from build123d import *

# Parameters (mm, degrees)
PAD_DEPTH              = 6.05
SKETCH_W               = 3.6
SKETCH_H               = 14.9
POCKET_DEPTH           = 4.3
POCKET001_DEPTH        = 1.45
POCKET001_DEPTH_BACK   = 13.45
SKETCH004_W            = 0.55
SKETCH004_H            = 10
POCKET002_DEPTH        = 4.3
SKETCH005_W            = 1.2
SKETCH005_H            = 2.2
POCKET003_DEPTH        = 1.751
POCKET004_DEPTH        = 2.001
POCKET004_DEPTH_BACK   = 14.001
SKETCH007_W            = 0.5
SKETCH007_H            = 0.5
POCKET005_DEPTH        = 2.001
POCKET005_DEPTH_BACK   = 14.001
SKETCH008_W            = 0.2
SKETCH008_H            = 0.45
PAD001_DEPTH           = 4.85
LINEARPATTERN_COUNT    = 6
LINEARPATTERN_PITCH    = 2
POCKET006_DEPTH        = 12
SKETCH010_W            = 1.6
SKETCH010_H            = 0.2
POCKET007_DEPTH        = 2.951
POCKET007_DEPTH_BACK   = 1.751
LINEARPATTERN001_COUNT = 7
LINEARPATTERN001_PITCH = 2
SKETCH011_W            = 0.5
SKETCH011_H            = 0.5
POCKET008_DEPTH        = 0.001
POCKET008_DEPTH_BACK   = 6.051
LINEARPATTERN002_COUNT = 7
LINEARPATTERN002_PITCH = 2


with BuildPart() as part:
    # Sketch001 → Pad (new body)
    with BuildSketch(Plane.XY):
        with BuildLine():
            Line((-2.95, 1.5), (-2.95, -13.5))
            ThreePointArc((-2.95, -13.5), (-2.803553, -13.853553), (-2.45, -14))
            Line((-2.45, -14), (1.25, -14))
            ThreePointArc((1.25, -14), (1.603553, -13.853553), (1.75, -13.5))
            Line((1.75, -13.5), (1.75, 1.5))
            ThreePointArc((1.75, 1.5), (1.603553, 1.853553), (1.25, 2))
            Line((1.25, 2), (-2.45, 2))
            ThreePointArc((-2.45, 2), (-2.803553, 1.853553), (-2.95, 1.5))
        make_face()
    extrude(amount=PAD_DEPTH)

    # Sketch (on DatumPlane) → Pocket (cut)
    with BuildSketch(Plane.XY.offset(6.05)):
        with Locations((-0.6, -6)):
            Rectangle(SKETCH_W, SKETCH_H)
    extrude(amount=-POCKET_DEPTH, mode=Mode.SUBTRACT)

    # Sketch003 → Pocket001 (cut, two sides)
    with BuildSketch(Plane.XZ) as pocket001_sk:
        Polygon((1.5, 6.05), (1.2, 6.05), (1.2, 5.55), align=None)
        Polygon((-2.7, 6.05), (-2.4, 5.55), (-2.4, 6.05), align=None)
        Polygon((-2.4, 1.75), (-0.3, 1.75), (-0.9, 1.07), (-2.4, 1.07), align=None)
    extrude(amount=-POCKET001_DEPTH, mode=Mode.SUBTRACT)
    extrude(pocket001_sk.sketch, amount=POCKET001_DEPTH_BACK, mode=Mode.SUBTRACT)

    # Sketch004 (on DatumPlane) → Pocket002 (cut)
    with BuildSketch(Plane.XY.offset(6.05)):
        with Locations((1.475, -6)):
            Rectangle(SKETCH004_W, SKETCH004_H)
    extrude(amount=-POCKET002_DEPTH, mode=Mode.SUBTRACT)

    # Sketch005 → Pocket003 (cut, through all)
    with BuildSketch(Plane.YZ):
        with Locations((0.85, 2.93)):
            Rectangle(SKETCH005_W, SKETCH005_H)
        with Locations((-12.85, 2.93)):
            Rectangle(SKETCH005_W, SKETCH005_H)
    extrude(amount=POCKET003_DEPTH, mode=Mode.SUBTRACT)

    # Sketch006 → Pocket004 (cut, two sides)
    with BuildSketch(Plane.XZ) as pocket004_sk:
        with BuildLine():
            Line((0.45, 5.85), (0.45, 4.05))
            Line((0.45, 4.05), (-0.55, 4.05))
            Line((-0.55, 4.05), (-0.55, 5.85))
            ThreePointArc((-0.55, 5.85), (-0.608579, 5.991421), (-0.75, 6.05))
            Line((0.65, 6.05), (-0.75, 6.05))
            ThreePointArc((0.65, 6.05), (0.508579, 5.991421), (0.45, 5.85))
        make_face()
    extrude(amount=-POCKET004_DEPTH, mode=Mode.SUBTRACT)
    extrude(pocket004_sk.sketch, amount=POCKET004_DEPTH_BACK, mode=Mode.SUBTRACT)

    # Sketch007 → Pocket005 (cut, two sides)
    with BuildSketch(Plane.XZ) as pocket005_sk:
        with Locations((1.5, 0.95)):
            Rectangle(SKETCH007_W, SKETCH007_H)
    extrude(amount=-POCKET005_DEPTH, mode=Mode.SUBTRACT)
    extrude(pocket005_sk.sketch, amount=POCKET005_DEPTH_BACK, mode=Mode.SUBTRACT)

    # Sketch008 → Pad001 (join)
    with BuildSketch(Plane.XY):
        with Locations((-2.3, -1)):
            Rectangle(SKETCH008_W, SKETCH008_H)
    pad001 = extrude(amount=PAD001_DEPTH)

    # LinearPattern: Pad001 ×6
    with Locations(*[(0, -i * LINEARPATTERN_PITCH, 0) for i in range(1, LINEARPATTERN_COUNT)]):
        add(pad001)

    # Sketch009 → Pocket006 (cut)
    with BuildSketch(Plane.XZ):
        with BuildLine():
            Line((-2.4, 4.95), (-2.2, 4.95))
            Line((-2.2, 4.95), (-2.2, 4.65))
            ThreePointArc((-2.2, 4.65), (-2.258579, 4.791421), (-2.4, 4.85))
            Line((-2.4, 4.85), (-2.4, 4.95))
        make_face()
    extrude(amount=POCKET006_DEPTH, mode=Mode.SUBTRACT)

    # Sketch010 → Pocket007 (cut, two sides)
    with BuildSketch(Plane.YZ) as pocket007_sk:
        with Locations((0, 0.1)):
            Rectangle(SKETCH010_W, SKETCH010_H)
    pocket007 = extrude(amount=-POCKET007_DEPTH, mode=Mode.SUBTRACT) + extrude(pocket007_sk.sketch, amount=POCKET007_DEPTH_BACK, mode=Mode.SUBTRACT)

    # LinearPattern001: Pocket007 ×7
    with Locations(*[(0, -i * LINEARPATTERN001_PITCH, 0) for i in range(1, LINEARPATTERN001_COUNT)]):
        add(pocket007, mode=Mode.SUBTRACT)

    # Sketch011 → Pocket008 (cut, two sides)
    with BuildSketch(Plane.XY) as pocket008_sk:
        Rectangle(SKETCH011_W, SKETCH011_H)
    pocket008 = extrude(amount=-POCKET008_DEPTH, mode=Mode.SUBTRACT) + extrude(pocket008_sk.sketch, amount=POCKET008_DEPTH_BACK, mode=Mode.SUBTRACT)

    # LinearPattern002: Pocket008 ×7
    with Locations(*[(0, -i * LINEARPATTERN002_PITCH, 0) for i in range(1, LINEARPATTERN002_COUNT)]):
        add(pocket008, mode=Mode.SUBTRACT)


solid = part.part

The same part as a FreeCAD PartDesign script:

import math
import FreeCAD as App
import Part
import Sketcher
from FreeCAD import Vector
Q = App.Units.Quantity


def add_polygon(sketch, points):
    """Adds a closed chain of lines whose ends are joined by coincident constraints."""
    first, n = sketch.GeometryCount, len(points)
    for a, b in zip(points, points[1:] + points[:1]):
        sketch.addGeometry(Part.LineSegment(App.Vector(*a, 0), App.Vector(*b, 0)), False)
    for i in range(n):
        sketch.addConstraint(Sketcher.Constraint("Coincident", first + i, 2, first + (i + 1) % n, 1))

doc = App.newDocument("Part")
body = doc.addObject("PartDesign::Body", "Body")

sketch1 = body.newObject("Sketcher::SketchObject", "Sketch")
sketch1.AttachmentSupport = (doc.getObject("XY_Plane"), [""])
sketch1.MapMode = "FlatFace"
sketch1.addGeometry([
    Part.LineSegment(Vector(-2.95, 1.5, 0), Vector(-2.95, -13.5, 0)),
    Part.ArcOfCircle(Part.Circle(Vector(-2.449999, -13.499999, 0), Vector(0, 0, 1), 0.500001), math.radians(-179.999847), math.radians(-90.000153)),
    Part.LineSegment(Vector(-2.45, -14, 0), Vector(1.25, -14, 0)),
    Part.ArcOfCircle(Part.Circle(Vector(1.249999, -13.499999, 0), Vector(0, 0, 1), 0.500001), math.radians(-89.999847), math.radians(-0.000153)),
    Part.LineSegment(Vector(1.75, -13.5, 0), Vector(1.75, 1.5, 0)),
    Part.ArcOfCircle(Part.Circle(Vector(1.249999, 1.499999, 0), Vector(0, 0, 1), 0.500001), math.radians(0.000153), math.radians(89.999847)),
    Part.LineSegment(Vector(1.25, 2, 0), Vector(-2.45, 2, 0)),
    Part.ArcOfCircle(Part.Circle(Vector(-2.449999, 1.499999, 0), Vector(0, 0, 1), 0.500001), math.radians(90.000153), math.radians(179.999847)),
], False)
sketch1.addConstraint([
    Sketcher.Constraint("Coincident", 0, 2, 1, 1),
    Sketcher.Constraint("Coincident", 1, 2, 2, 1),
    Sketcher.Constraint("Coincident", 2, 2, 3, 1),
    Sketcher.Constraint("Coincident", 3, 2, 4, 1),
    Sketcher.Constraint("Coincident", 4, 2, 5, 1),
    Sketcher.Constraint("Coincident", 5, 2, 6, 1),
    Sketcher.Constraint("Coincident", 6, 2, 7, 1),
    Sketcher.Constraint("Coincident", 7, 2, 0, 1),
    Sketcher.Constraint("Vertical", 0),
    Sketcher.Constraint("Horizontal", 2),
    Sketcher.Constraint("Vertical", 4),
    Sketcher.Constraint("Horizontal", 6),
    Sketcher.Constraint("Equal", 1, 3),
    Sketcher.Constraint("Equal", 3, 5),
    Sketcher.Constraint("Equal", 5, 7),
    Sketcher.Constraint("Horizontal", 3, 3, 0, 2),
    Sketcher.Constraint("Horizontal", 0, 2, 3, 2),
    Sketcher.Constraint("Horizontal", 7, 3, 4, 2),
    Sketcher.Constraint("Horizontal", 4, 2, 7, 2),
    Sketcher.Constraint("Vertical", 7, 3, 1, 2),
    Sketcher.Constraint("Vertical", 5, 3, 2, 2),
    Sketcher.Constraint("Vertical", 2, 2, 5, 2),
    Sketcher.Constraint("Vertical", 1, 2, 6, 2),
    Sketcher.Constraint("Radius", 1, Q("0.500001 mm")),
    Sketcher.Constraint("DistanceY", 0, 2, 0, 1, Q("15 mm")),
    Sketcher.Constraint("DistanceX", 2, 1, 2, 2, Q("3.7 mm")),
    Sketcher.Constraint("DistanceY", 1, 2, -1, 1, Q("14 mm")),
    Sketcher.Constraint("DistanceX", 1, 3, -1, 1, Q("2.449999 mm")),
])
pad1 = body.newObject("PartDesign::Pad", "Pad")
pad1.Profile = sketch1
pad1.Length = 6.05

sketch2 = body.newObject("Sketcher::SketchObject", "Sketch001")
sketch2.AttachmentSupport = (doc.getObject("XY_Plane"), [""])
sketch2.MapMode = "FlatFace"
sketch2.AttachmentOffset = App.Placement(Vector(0, 0, 6.05), App.Rotation())
add_polygon(sketch2, [(-2.4, 1.45), (-2.4, -13.45), (1.2, -13.45), (1.2, 1.45)])
sketch2.addConstraint([
    Sketcher.Constraint("Vertical", 0),
    Sketcher.Constraint("Horizontal", 1),
    Sketcher.Constraint("Vertical", 2),
    Sketcher.Constraint("Horizontal", 3),
    Sketcher.Constraint("DistanceX", 1, 1, 1, 2, Q("3.6 mm")),
    Sketcher.Constraint("DistanceY", 0, 2, 0, 1, Q("14.9 mm")),
    Sketcher.Constraint("DistanceX", 0, 2, -1, 1, Q("2.4 mm")),
    Sketcher.Constraint("DistanceY", 0, 2, -1, 1, Q("13.45 mm")),
])
pocket1 = body.newObject("PartDesign::Pocket", "Pocket")
pocket1.Profile = sketch2
pocket1.Length = 4.3

sketch3 = body.newObject("Sketcher::SketchObject", "Sketch002")
sketch3.AttachmentSupport = (doc.getObject("XZ_Plane"), [""])
sketch3.MapMode = "FlatFace"
add_polygon(sketch3, [(1.5, 6.05), (1.2, 6.05), (1.2, 5.55)])
add_polygon(sketch3, [(-2.7, 6.05), (-2.4, 5.55), (-2.4, 6.05)])
add_polygon(sketch3, [(-0.3, 1.75), (-2.4, 1.75), (-2.4, 1.07), (-0.9, 1.07)])
sketch3.addConstraint([
    Sketcher.Constraint("Horizontal", 0),
    Sketcher.Constraint("Vertical", 1),
    Sketcher.Constraint("Vertical", 4),
    Sketcher.Constraint("Horizontal", 5),
    Sketcher.Constraint("Horizontal", 6),
    Sketcher.Constraint("Vertical", 7),
    Sketcher.Constraint("Horizontal", 8),
    Sketcher.Constraint("Horizontal", 1, 2, 3, 2),
    Sketcher.Constraint("Horizontal", 2, 2, 4, 2),
    Sketcher.Constraint("Vertical", 4, 2, 6, 2),
    Sketcher.Constraint("Equal", 0, 5),
    Sketcher.Constraint("DistanceX", 0, 2, 0, 1, Q("0.3 mm")),
    Sketcher.Constraint("DistanceX", 6, 2, 6, 1, Q("2.1 mm")),
    Sketcher.Constraint("DistanceX", 8, 1, 8, 2, Q("1.5 mm")),
    Sketcher.Constraint("DistanceY", 1, 2, 1, 1, Q("0.5 mm")),
    Sketcher.Constraint("DistanceY", 7, 2, 7, 1, Q("0.68 mm")),
    Sketcher.Constraint("DistanceX", -1, 1, 0, 2, Q("1.2 mm")),
    Sketcher.Constraint("DistanceX", 3, 2, -1, 1, Q("2.4 mm")),
    Sketcher.Constraint("DistanceY", 6, 2, 3, 2, Q("3.8 mm")),
    Sketcher.Constraint("DistanceY", -1, 1, 0, 2, Q("6.05 mm")),
])
pocket2 = body.newObject("PartDesign::Pocket", "Pocket001")
pocket2.Profile = sketch3
pocket2.Type = "TwoLengths"
pocket2.Length = 1.45
pocket2.Length2 = 13.45

sketch4 = body.newObject("Sketcher::SketchObject", "Sketch003")
sketch4.AttachmentSupport = (doc.getObject("XY_Plane"), [""])
sketch4.MapMode = "FlatFace"
sketch4.AttachmentOffset = App.Placement(Vector(0, 0, 6.05), App.Rotation())
add_polygon(sketch4, [(1.2, -1), (1.2, -11), (1.75, -11), (1.75, -1)])
sketch4.addConstraint([
    Sketcher.Constraint("Vertical", 0),
    Sketcher.Constraint("Horizontal", 1),
    Sketcher.Constraint("Vertical", 2),
    Sketcher.Constraint("Horizontal", 3),
    Sketcher.Constraint("DistanceY", 0, 2, 0, 1, Q("10 mm")),
    Sketcher.Constraint("DistanceY", 0, 2, -1, 1, Q("11 mm")),
    Sketcher.Constraint("DistanceX", 1, 1, 1, 2, Q("0.55 mm")),
    Sketcher.Constraint("DistanceX", -1, 1, 0, 2, Q("1.2 mm")),
])
pocket3 = body.newObject("PartDesign::Pocket", "Pocket002")
pocket3.Profile = sketch4
pocket3.Length = 4.3

sketch5 = body.newObject("Sketcher::SketchObject", "Sketch004")
sketch5.AttachmentSupport = (doc.getObject("YZ_Plane"), [""])
sketch5.MapMode = "FlatFace"
add_polygon(sketch5, [(0.25, 4.03), (0.25, 1.83), (1.45, 1.83), (1.45, 4.03)])
add_polygon(sketch5, [(-13.45, 4.03), (-13.45, 1.83), (-12.25, 1.83), (-12.25, 4.03)])
sketch5.addConstraint([
    Sketcher.Constraint("Vertical", 0),
    Sketcher.Constraint("Horizontal", 1),
    Sketcher.Constraint("Vertical", 2),
    Sketcher.Constraint("Horizontal", 3),
    Sketcher.Constraint("Vertical", 4),
    Sketcher.Constraint("Horizontal", 5),
    Sketcher.Constraint("Vertical", 6),
    Sketcher.Constraint("Horizontal", 7),
    Sketcher.Constraint("Horizontal", 1, 2, 4, 2),
    Sketcher.Constraint("Horizontal", 3, 2, 6, 2),
    Sketcher.Constraint("Equal", 3, 5),
    Sketcher.Constraint("DistanceX", 1, 1, 1, 2, Q("1.2 mm")),
    Sketcher.Constraint("DistanceY", 0, 2, 0, 1, Q("2.2 mm")),
    Sketcher.Constraint("DistanceX", 4, 2, 0, 2, Q("13.7 mm")),
    Sketcher.Constraint("DistanceX", -1, 1, 0, 2, Q("0.25 mm")),
    Sketcher.Constraint("DistanceY", -1, 1, 0, 2, Q("1.83 mm")),
])
pocket4 = body.newObject("PartDesign::Pocket", "Pocket003")
pocket4.Profile = sketch5
pocket4.Type = "ThroughAll"
pocket4.Reversed = True

sketch6 = body.newObject("Sketcher::SketchObject", "Sketch005")
sketch6.AttachmentSupport = (doc.getObject("XZ_Plane"), [""])
sketch6.MapMode = "FlatFace"
sketch6.addGeometry([
    Part.LineSegment(Vector(0.45, 4.05, 0), Vector(0.45, 5.85, 0)),
    Part.ArcOfCircle(Part.Circle(Vector(0.650001, 5.849999, 0), Vector(0, 0, 1), 0.200001), math.radians(90.000348), math.radians(179.999652)),
    Part.LineSegment(Vector(0.65, 6.05, 0), Vector(-0.75, 6.05, 0)),
    Part.ArcOfCircle(Part.Circle(Vector(-0.750001, 5.849999, 0), Vector(0, 0, 1), 0.200001), math.radians(0.000348), math.radians(89.999652)),
    Part.LineSegment(Vector(-0.55, 5.85, 0), Vector(-0.55, 4.05, 0)),
    Part.LineSegment(Vector(-0.55, 4.05, 0), Vector(0.45, 4.05, 0)),
], False)
sketch6.addConstraint([
    Sketcher.Constraint("Coincident", 0, 2, 1, 2),
    Sketcher.Constraint("Coincident", 1, 1, 2, 1),
    Sketcher.Constraint("Coincident", 2, 2, 3, 2),
    Sketcher.Constraint("Coincident", 3, 1, 4, 1),
    Sketcher.Constraint("Coincident", 4, 2, 5, 1),
    Sketcher.Constraint("Coincident", 5, 2, 0, 1),
    Sketcher.Constraint("Vertical", 0),
    Sketcher.Constraint("Horizontal", 2),
    Sketcher.Constraint("Vertical", 4),
    Sketcher.Constraint("Horizontal", 5),
    Sketcher.Constraint("Equal", 1, 3),
    Sketcher.Constraint("Horizontal", 3, 3, 0, 2),
    Sketcher.Constraint("Horizontal", 0, 2, 3, 1),
    Sketcher.Constraint("Vertical", 3, 3, 2, 2),
    Sketcher.Constraint("Radius", 1, Q("0.200001 mm")),
    Sketcher.Constraint("DistanceX", 5, 1, 5, 2, Q("1 mm")),
    Sketcher.Constraint("DistanceX", 2, 2, 2, 1, Q("1.4 mm")),
    Sketcher.Constraint("DistanceY", 0, 1, 0, 2, Q("1.8 mm")),
    Sketcher.Constraint("DistanceX", -1, 1, 1, 3, Q("0.650001 mm")),
    Sketcher.Constraint("DistanceY", -1, 1, 1, 3, Q("5.849999 mm")),
])
pocket5 = body.newObject("PartDesign::Pocket", "Pocket004")
pocket5.Profile = sketch6
pocket5.Type = "ThroughAll"
pocket5.Midplane = True

sketch7 = body.newObject("Sketcher::SketchObject", "Sketch006")
sketch7.AttachmentSupport = (doc.getObject("XZ_Plane"), [""])
sketch7.MapMode = "FlatFace"
add_polygon(sketch7, [(1.25, 1.2), (1.25, 0.7), (1.75, 0.7), (1.75, 1.2)])
sketch7.addConstraint([
    Sketcher.Constraint("Vertical", 0),
    Sketcher.Constraint("Horizontal", 1),
    Sketcher.Constraint("Vertical", 2),
    Sketcher.Constraint("Horizontal", 3),
    Sketcher.Constraint("Equal", 3, 0),
    Sketcher.Constraint("DistanceX", 1, 1, 1, 2, Q("0.5 mm")),
    Sketcher.Constraint("DistanceY", -1, 1, 0, 2, Q("0.7 mm")),
    Sketcher.Constraint("DistanceX", -1, 1, 0, 2, Q("1.25 mm")),
])
pocket6 = body.newObject("PartDesign::Pocket", "Pocket005")
pocket6.Profile = sketch7
pocket6.Type = "ThroughAll"
pocket6.Midplane = True

sketch8 = body.newObject("Sketcher::SketchObject", "Sketch007")
sketch8.AttachmentSupport = (doc.getObject("XY_Plane"), [""])
sketch8.MapMode = "FlatFace"
add_polygon(sketch8, [(-2.4, -0.775), (-2.4, -1.225), (-2.2, -1.225), (-2.2, -0.775)])
sketch8.addConstraint([
    Sketcher.Constraint("Vertical", 0),
    Sketcher.Constraint("Horizontal", 1),
    Sketcher.Constraint("Vertical", 2),
    Sketcher.Constraint("Horizontal", 3),
    Sketcher.Constraint("DistanceX", 1, 1, 1, 2, Q("0.2 mm")),
    Sketcher.Constraint("DistanceY", 0, 2, 0, 1, Q("0.45 mm")),
    Sketcher.Constraint("DistanceX", 0, 2, -1, 1, Q("2.4 mm")),
    Sketcher.Constraint("DistanceY", 0, 2, -1, 1, Q("1.225 mm")),
])
pad2 = body.newObject("PartDesign::Pad", "Pad001")
pad2.Profile = sketch8
pad2.Length = 4.85
doc.recompute()

linearpattern = body.newObject("PartDesign::LinearPattern", "LinearPattern")
linearpattern.Originals = [pad2]
linearpattern.Direction = (doc.getObject("Y_Axis"), [""])
linearpattern.Mode = "offset"
linearpattern.Offset = 2
linearpattern.Occurrences = 6
linearpattern.Reversed = True
body.Tip = linearpattern

sketch9 = body.newObject("Sketcher::SketchObject", "Sketch008")
sketch9.AttachmentSupport = (doc.getObject("XZ_Plane"), [""])
sketch9.MapMode = "FlatFace"
sketch9.addGeometry([
    Part.LineSegment(Vector(-2.2, 4.95, 0), Vector(-2.4, 4.95, 0)),
    Part.LineSegment(Vector(-2.4, 4.95, 0), Vector(-2.4, 4.85, 0)),
    Part.ArcOfCircle(Part.Circle(Vector(-2.400001, 4.649999, 0), Vector(0, 0, 1), 0.200001), math.radians(0.000348), math.radians(89.999652)),
    Part.LineSegment(Vector(-2.2, 4.65, 0), Vector(-2.2, 4.95, 0)),
], False)
sketch9.addConstraint([
    Sketcher.Constraint("Coincident", 0, 2, 1, 1),
    Sketcher.Constraint("Coincident", 1, 2, 2, 2),
    Sketcher.Constraint("Coincident", 2, 1, 3, 1),
    Sketcher.Constraint("Coincident", 3, 2, 0, 1),
    Sketcher.Constraint("Horizontal", 0),
    Sketcher.Constraint("Vertical", 1),
    Sketcher.Constraint("Vertical", 3),
    Sketcher.Constraint("Vertical", 2, 3, 0, 2),
    Sketcher.Constraint("Radius", 2, Q("0.200001 mm")),
    Sketcher.Constraint("DistanceY", 1, 2, 1, 1, Q("0.1 mm")),
    Sketcher.Constraint("DistanceY", 3, 1, 3, 2, Q("0.3 mm")),
    Sketcher.Constraint("DistanceX", 2, 3, -1, 1, Q("2.400001 mm")),
    Sketcher.Constraint("DistanceY", -1, 1, 2, 3, Q("4.649999 mm")),
])
pocket7 = body.newObject("PartDesign::Pocket", "Pocket006")
pocket7.Profile = sketch9
pocket7.Length = 12
pocket7.Reversed = True

sketch10 = body.newObject("Sketcher::SketchObject", "Sketch009")
sketch10.AttachmentSupport = (doc.getObject("YZ_Plane"), [""])
sketch10.MapMode = "FlatFace"
add_polygon(sketch10, [(-0.8, 0.2), (-0.8, 0), (0.8, 0), (0.8, 0.2)])
sketch10.addConstraint([
    Sketcher.Constraint("Vertical", 0),
    Sketcher.Constraint("Horizontal", 1),
    Sketcher.Constraint("Vertical", 2),
    Sketcher.Constraint("Horizontal", 3),
    Sketcher.Constraint("Symmetric", 0, 2, 1, 2, -1, 1),
    Sketcher.Constraint("DistanceX", 1, 1, 1, 2, Q("1.6 mm")),
    Sketcher.Constraint("DistanceY", 0, 2, 0, 1, Q("0.2 mm")),
])
pocket8 = body.newObject("PartDesign::Pocket", "Pocket007")
pocket8.Profile = sketch10
pocket8.Type = "ThroughAll"
pocket8.Midplane = True
doc.recompute()

linearpattern2 = body.newObject("PartDesign::LinearPattern", "LinearPattern001")
linearpattern2.Originals = [pocket8]
linearpattern2.Direction = (doc.getObject("Y_Axis"), [""])
linearpattern2.Mode = "offset"
linearpattern2.Offset = 2
linearpattern2.Occurrences = 7
linearpattern2.Reversed = True
body.Tip = linearpattern2

sketch11 = body.newObject("Sketcher::SketchObject", "Sketch010")
sketch11.AttachmentSupport = (doc.getObject("XY_Plane"), [""])
sketch11.MapMode = "FlatFace"
add_polygon(sketch11, [(-0.25, 0.25), (-0.25, -0.25), (0.25, -0.25), (0.25, 0.25)])
sketch11.addConstraint([
    Sketcher.Constraint("Vertical", 0),
    Sketcher.Constraint("Horizontal", 1),
    Sketcher.Constraint("Vertical", 2),
    Sketcher.Constraint("Horizontal", 3),
    Sketcher.Constraint("Symmetric", 0, 2, 2, 2, -1, 1),
    Sketcher.Constraint("Equal", 3, 0),
    Sketcher.Constraint("DistanceX", 1, 1, 1, 2, Q("0.5 mm")),
])
pocket9 = body.newObject("PartDesign::Pocket", "Pocket008")
pocket9.Profile = sketch11
pocket9.Type = "ThroughAll"
pocket9.Midplane = True
doc.recompute()

linearpattern3 = body.newObject("PartDesign::LinearPattern", "LinearPattern002")
linearpattern3.Originals = [pocket9]
linearpattern3.Direction = (doc.getObject("Y_Axis"), [""])
linearpattern3.Mode = "offset"
linearpattern3.Offset = 2
linearpattern3.Occurrences = 7
linearpattern3.Reversed = True
body.Tip = linearpattern3

doc.recompute()
